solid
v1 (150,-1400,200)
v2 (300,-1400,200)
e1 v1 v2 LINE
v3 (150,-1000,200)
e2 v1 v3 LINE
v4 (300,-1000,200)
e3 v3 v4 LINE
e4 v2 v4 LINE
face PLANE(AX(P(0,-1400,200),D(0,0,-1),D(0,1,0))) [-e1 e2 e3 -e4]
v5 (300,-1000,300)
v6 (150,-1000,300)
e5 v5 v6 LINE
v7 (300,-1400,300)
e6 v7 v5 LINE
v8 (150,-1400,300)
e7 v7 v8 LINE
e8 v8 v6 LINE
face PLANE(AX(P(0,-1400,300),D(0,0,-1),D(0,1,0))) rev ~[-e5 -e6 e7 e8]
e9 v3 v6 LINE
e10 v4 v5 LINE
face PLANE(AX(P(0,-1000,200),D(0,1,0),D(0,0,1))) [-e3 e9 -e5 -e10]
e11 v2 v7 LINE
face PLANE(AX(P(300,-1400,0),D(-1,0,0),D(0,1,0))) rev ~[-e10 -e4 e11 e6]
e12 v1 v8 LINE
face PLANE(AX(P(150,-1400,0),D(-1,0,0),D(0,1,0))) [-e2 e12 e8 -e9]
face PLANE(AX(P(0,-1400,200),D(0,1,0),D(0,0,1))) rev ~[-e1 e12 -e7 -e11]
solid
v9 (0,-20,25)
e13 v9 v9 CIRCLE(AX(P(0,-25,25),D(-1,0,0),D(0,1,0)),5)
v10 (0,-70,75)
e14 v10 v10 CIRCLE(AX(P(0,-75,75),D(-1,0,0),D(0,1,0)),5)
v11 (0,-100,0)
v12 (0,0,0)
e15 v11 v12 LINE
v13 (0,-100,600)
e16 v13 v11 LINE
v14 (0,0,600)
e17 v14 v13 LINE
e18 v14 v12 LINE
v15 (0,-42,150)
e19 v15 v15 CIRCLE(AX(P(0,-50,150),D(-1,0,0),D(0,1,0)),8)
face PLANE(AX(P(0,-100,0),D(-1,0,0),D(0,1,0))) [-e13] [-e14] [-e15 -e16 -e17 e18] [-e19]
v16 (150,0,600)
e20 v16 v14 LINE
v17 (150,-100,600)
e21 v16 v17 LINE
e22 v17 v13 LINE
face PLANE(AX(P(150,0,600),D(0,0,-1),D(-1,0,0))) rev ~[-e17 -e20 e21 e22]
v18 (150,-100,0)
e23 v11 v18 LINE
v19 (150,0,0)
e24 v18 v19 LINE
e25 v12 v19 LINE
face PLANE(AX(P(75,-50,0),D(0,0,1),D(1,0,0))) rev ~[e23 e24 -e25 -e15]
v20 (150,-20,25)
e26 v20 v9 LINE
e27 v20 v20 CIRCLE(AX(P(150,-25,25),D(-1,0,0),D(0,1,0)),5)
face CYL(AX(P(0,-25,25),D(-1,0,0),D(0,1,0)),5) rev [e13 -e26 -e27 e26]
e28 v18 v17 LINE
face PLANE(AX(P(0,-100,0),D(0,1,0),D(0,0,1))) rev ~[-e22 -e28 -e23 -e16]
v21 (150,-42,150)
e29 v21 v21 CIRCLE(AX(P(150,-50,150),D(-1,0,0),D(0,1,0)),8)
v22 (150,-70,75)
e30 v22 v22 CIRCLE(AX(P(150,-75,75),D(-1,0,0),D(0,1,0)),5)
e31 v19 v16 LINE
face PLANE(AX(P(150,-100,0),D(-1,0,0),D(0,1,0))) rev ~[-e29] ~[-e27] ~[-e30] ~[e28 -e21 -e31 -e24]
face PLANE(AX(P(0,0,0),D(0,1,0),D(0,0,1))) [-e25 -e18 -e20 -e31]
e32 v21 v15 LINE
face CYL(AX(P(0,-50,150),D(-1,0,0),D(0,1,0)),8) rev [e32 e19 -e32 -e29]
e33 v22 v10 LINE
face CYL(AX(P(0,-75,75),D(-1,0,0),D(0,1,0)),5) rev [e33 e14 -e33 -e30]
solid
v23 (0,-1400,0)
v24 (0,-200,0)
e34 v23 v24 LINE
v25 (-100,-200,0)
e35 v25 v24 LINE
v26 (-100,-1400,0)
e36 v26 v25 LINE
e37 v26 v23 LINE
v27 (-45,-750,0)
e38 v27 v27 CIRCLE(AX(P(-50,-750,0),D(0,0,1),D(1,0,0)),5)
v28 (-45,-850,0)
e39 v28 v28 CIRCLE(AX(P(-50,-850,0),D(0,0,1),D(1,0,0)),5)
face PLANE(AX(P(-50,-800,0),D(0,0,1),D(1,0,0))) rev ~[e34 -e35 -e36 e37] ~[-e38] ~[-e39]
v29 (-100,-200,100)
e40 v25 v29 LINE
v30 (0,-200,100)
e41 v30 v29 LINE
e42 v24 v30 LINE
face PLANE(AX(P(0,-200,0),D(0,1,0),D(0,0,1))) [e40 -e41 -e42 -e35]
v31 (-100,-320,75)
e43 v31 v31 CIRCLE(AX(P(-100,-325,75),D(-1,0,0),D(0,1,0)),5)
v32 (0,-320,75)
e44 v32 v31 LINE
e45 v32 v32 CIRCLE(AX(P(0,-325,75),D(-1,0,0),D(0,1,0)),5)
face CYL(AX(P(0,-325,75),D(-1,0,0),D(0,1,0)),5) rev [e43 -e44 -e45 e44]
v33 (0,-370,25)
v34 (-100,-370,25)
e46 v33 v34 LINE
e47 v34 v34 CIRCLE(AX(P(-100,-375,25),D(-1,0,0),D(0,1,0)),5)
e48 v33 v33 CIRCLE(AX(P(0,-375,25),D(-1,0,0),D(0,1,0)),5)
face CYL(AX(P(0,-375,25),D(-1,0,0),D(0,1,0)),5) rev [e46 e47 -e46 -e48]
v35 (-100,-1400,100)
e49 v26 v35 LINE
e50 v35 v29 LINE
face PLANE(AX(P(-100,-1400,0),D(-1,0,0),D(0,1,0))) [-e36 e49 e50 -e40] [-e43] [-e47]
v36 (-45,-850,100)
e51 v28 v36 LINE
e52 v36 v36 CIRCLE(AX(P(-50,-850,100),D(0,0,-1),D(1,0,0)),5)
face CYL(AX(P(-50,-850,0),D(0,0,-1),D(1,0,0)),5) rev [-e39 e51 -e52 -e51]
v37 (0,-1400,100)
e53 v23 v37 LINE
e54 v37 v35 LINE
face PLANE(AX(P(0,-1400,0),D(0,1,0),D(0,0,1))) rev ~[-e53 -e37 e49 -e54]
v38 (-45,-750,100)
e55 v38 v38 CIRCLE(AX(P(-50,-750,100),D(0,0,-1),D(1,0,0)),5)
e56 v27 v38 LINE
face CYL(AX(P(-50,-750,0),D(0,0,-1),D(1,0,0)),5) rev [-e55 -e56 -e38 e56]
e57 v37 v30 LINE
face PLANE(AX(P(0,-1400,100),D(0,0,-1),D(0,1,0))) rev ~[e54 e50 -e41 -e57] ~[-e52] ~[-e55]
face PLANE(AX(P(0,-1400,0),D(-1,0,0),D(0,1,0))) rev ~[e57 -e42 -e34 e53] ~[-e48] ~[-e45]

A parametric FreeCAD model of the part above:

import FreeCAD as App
import Part
import Sketcher

V = App.Vector
Q = App.Units.Quantity

doc = App.newDocument("Part")
body = doc.addObject("PartDesign::Body", "Body")

# Sketch on YZ plane
sketch1 = body.newObject("Sketcher::SketchObject", "Sketch")
sketch1.AttachmentSupport = (doc.getObject("YZ_Plane"), [""])
sketch1.MapMode = "FlatFace"
sketch1.addGeometry(Part.LineSegment(V(-1400, 300, 0), V(-1400, 200, 0)), False)
sketch1.addGeometry(Part.LineSegment(V(-1400, 200, 0), V(-1000, 200, 0)), False)
sketch1.addGeometry(Part.LineSegment(V(-1000, 200, 0), V(-1000, 300, 0)), False)
sketch1.addGeometry(Part.LineSegment(V(-1000, 300, 0), V(-1400, 300, 0)), False)
sketch1.addConstraint(Sketcher.Constraint("Coincident", 0, 2, 1, 1))
sketch1.addConstraint(Sketcher.Constraint("Coincident", 1, 2, 2, 1))
sketch1.addConstraint(Sketcher.Constraint("Coincident", 2, 2, 3, 1))
sketch1.addConstraint(Sketcher.Constraint("Coincident", 3, 2, 0, 1))
sketch1.addConstraint(Sketcher.Constraint("Vertical", 0))
sketch1.addConstraint(Sketcher.Constraint("Horizontal", 1))
sketch1.addConstraint(Sketcher.Constraint("Vertical", 2))
sketch1.addConstraint(Sketcher.Constraint("Horizontal", 3))
sketch1.addConstraint(Sketcher.Constraint("DistanceX", 1, 1, 1, 2, Q("400 mm")))
sketch1.addConstraint(Sketcher.Constraint("DistanceY", 0, 2, 0, 1, Q("100 mm")))
sketch1.addConstraint(Sketcher.Constraint("DistanceX", 0, 2, -1, 1, Q("1400 mm")))
sketch1.addConstraint(Sketcher.Constraint("DistanceY", -1, 1, 0, 2, Q("200 mm")))
pad1 = body.newObject("PartDesign::Pad", "Pad")
pad1.Profile = sketch1
pad1.Length = 846
pad1.Midplane = True
body2 = doc.addObject("PartDesign::Body", "Body001")

# Sketch on YZ plane
sketch2 = body2.newObject("Sketcher::SketchObject", "Sketch001")
sketch2.AttachmentSupport = (doc.getObject("YZ_Plane001"), [""])
sketch2.MapMode = "FlatFace"
sketch2.addGeometry(Part.LineSegment(V(-1400, 100, 0), V(-1400, 0, 0)), False)
sketch2.addGeometry(Part.LineSegment(V(-1400, 0, 0), V(-200, 0, 0)), False)
sketch2.addGeometry(Part.LineSegment(V(-200, 0, 0), V(-200, 100, 0)), False)
sketch2.addGeometry(Part.LineSegment(V(-200, 100, 0), V(-1400, 100, 0)), False)
sketch2.addGeometry(Part.Circle(V(-375, 25, 0), V(0, 0, 1), 5), False)
sketch2.addGeometry(Part.Circle(V(-325, 75, 0), V(0, 0, 1), 5), False)
sketch2.addConstraint(Sketcher.Constraint("Coincident", 0, 2, 1, 1))
sketch2.addConstraint(Sketcher.Constraint("Coincident", 1, 2, 2, 1))
sketch2.addConstraint(Sketcher.Constraint("Coincident", 2, 2, 3, 1))
sketch2.addConstraint(Sketcher.Constraint("Coincident", 3, 2, 0, 1))
sketch2.addConstraint(Sketcher.Constraint("Vertical", 0))
sketch2.addConstraint(Sketcher.Constraint("Horizontal", 1))
sketch2.addConstraint(Sketcher.Constraint("Vertical", 2))
sketch2.addConstraint(Sketcher.Constraint("Horizontal", 3))
sketch2.addConstraint(Sketcher.Constraint("Equal", 4, 5))
sketch2.addConstraint(Sketcher.Constraint("PointOnObject", 0, 2, -1))
sketch2.addConstraint(Sketcher.Constraint("Diameter", 4, Q("10 mm")))
sketch2.addConstraint(Sketcher.Constraint("DistanceX", 1, 1, 1, 2, Q("1200 mm")))
sketch2.addConstraint(Sketcher.Constraint("DistanceY", 0, 2, 0, 1, Q("100 mm")))
sketch2.addConstraint(Sketcher.Constraint("DistanceX", 4, 3, -1, 1, Q("375 mm")))
sketch2.addConstraint(Sketcher.Constraint("DistanceY", -1, 1, 4, 3, Q("25 mm")))
sketch2.addConstraint(Sketcher.Constraint("DistanceX", 5, 3, -1, 1, Q("325 mm")))
sketch2.addConstraint(Sketcher.Constraint("DistanceY", -1, 1, 5, 3, Q("75 mm")))
sketch2.addConstraint(Sketcher.Constraint("DistanceX", 0, 2, -1, 1, Q("1400 mm")))
pad2 = body2.newObject("PartDesign::Pad", "Pad001")
pad2.Profile = sketch2
pad2.Length = 846
pad2.Midplane = True
body3 = doc.addObject("PartDesign::Body", "Body002")

# Sketch on YZ plane
sketch3 = body3.newObject("Sketcher::SketchObject", "Sketch002")
sketch3.AttachmentSupport = (doc.getObject("YZ_Plane002"), [""])
sketch3.MapMode = "FlatFace"
sketch3.addGeometry(Part.LineSegment(V(-100, 650, 0), V(-100, 0, 0)), False)
sketch3.addGeometry(Part.LineSegment(V(-100, 0, 0), V(0, 0, 0)), False)
sketch3.addGeometry(Part.LineSegment(V(0, 0, 0), V(0, 650, 0)), False)
sketch3.addGeometry(Part.LineSegment(V(0, 650, 0), V(-100, 650, 0)), False)
sketch3.addGeometry(Part.Circle(V(-75, 75, 0), V(0, 0, 1), 5), False)
sketch3.addGeometry(Part.Circle(V(-25, 25, 0), V(0, 0, 1), 5), False)
sketch3.addGeometry(Part.Circle(V(-50, 150, 0), V(0, 0, 1), 8), False)
sketch3.addConstraint(Sketcher.Constraint("Coincident", 0, 2, 1, 1))
sketch3.addConstraint(Sketcher.Constraint("Coincident", 1, 2, 2, 1))
sketch3.addConstraint(Sketcher.Constraint("Coincident", 2, 2, 3, 1))
sketch3.addConstraint(Sketcher.Constraint("Coincident", 3, 2, 0, 1))
sketch3.addConstraint(Sketcher.Constraint("Vertical", 0))
sketch3.addConstraint(Sketcher.Constraint("Horizontal", 1))
sketch3.addConstraint(Sketcher.Constraint("Vertical", 2))
sketch3.addConstraint(Sketcher.Constraint("Horizontal", 3))
sketch3.addConstraint(Sketcher.Constraint("Coincident", 1, 2, -1, 1))
sketch3.addConstraint(Sketcher.Constraint("Equal", 4, 5))
sketch3.addConstraint(Sketcher.Constraint("Diameter", 4, Q("10 mm")))
sketch3.addConstraint(Sketcher.Constraint("Diameter", 6, Q("16 mm")))
sketch3.addConstraint(Sketcher.Constraint("DistanceX", 1, 1, 1, 2, Q("100 mm")))
sketch3.addConstraint(Sketcher.Constraint("DistanceY", 0, 2, 0, 1, Q("650 mm")))
sketch3.addConstraint(Sketcher.Constraint("DistanceX", 4, 3, -1, 1, Q("75 mm")))
sketch3.addConstraint(Sketcher.Constraint("DistanceY", -1, 1, 4, 3, Q("75 mm")))
sketch3.addConstraint(Sketcher.Constraint("DistanceX", 5, 3, -1, 1, Q("25 mm")))
sketch3.addConstraint(Sketcher.Constraint("DistanceY", -1, 1, 5, 3, Q("25 mm")))
sketch3.addConstraint(Sketcher.Constraint("DistanceX", 6, 3, -1, 1, Q("50 mm")))
sketch3.addConstraint(Sketcher.Constraint("DistanceY", -1, 1, 6, 3, Q("150 mm")))
pad3 = body3.newObject("PartDesign::Pad", "Pad002")
pad3.Profile = sketch3
pad3.Length = 846
pad3.Midplane = True
body4 = doc.addObject("PartDesign::Body", "Body003")
body4.AllowCompound = True

# Sketch on XY plane
sketch4 = body4.newObject("Sketcher::SketchObject", "Sketch003")
sketch4.AttachmentSupport = (doc.getObject("XY_Plane003"), [""])
sketch4.MapMode = "FlatFace"
sketch4.addGeometry(Part.LineSegment(V(0, 0, 0), V(0, -100, 0)), False)
sketch4.addGeometry(Part.LineSegment(V(0, -100, 0), V(150, -100, 0)), False)
sketch4.addGeometry(Part.LineSegment(V(150, -100, 0), V(150, 0, 0)), False)
sketch4.addGeometry(Part.LineSegment(V(150, 0, 0), V(0, 0, 0)), False)
sketch4.addGeometry(Part.LineSegment(V(-100, -200, 0), V(-100, -1400, 0)), False)
sketch4.addGeometry(Part.LineSegment(V(-100, -1400, 0), V(0, -1400, 0)), False)
sketch4.addGeometry(Part.LineSegment(V(0, -1400, 0), V(0, -200, 0)), False)
sketch4.addGeometry(Part.LineSegment(V(0, -200, 0), V(-100, -200, 0)), False)
sketch4.addGeometry(Part.Circle(V(-50, -850, 0), V(0, 0, 1), 5), False)
sketch4.addGeometry(Part.Circle(V(-50, -750, 0), V(0, 0, 1), 5), False)
sketch4.addGeometry(Part.LineSegment(V(150, -1000, 0), V(150, -1400, 0)), False)
sketch4.addGeometry(Part.LineSegment(V(150, -1400, 0), V(300, -1400, 0)), False)
sketch4.addGeometry(Part.LineSegment(V(300, -1400, 0), V(300, -1000, 0)), False)
sketch4.addGeometry(Part.LineSegment(V(300, -1000, 0), V(150, -1000, 0)), False)
sketch4.addConstraint(Sketcher.Constraint("Coincident", 0, 2, 1, 1))
sketch4.addConstraint(Sketcher.Constraint("Coincident", 1, 2, 2, 1))
sketch4.addConstraint(Sketcher.Constraint("Coincident", 2, 2, 3, 1))
sketch4.addConstraint(Sketcher.Constraint("Coincident", 3, 2, 0, 1))
sketch4.addConstraint(Sketcher.Constraint("Coincident", 4, 2, 5, 1))
sketch4.addConstraint(Sketcher.Constraint("Coincident", 5, 2, 6, 1))
sketch4.addConstraint(Sketcher.Constraint("Coincident", 6, 2, 7, 1))
sketch4.addConstraint(Sketcher.Constraint("Coincident", 7, 2, 4, 1))
sketch4.addConstraint(Sketcher.Constraint("Coincident", 10, 2, 11, 1))
sketch4.addConstraint(Sketcher.Constraint("Coincident", 11, 2, 12, 1))
sketch4.addConstraint(Sketcher.Constraint("Coincident", 12, 2, 13, 1))
sketch4.addConstraint(Sketcher.Constraint("Coincident", 13, 2, 10, 1))
sketch4.addConstraint(Sketcher.Constraint("Vertical", 0))
sketch4.addConstraint(Sketcher.Constraint("Horizontal", 1))
sketch4.addConstraint(Sketcher.Constraint("Vertical", 2))
sketch4.addConstraint(Sketcher.Constraint("Horizontal", 3))
sketch4.addConstraint(Sketcher.Constraint("Vertical", 4))
sketch4.addConstraint(Sketcher.Constraint("Horizontal", 5))
sketch4.addConstraint(Sketcher.Constraint("Vertical", 6))
sketch4.addConstraint(Sketcher.Constraint("Horizontal", 7))
sketch4.addConstraint(Sketcher.Constraint("Vertical", 10))
sketch4.addConstraint(Sketcher.Constraint("Horizontal", 11))
sketch4.addConstraint(Sketcher.Constraint("Vertical", 12))
sketch4.addConstraint(Sketcher.Constraint("Horizontal", 13))
sketch4.addConstraint(Sketcher.Constraint("Coincident", 3, 2, -1, 1))
sketch4.addConstraint(Sketcher.Constraint("Equal", 8, 9))
sketch4.addConstraint(Sketcher.Constraint("PointOnObject", 5, 2, -2))
sketch4.addConstraint(Sketcher.Constraint("Horizontal", 5, 2, 10, 2))
sketch4.addConstraint(Sketcher.Constraint("Vertical", 8, 3, 9, 3))
sketch4.addConstraint(Sketcher.Constraint("Vertical", 2, 2, 10, 2))
sketch4.addConstraint(Sketcher.Constraint("Equal", 3, 11))
sketch4.addConstraint(Sketcher.Constraint("Equal", 7, 0))
sketch4.addConstraint(Sketcher.Constraint("Diameter", 8, Q("10 mm")))
sketch4.addConstraint(Sketcher.Constraint("DistanceX", 1, 1, 1, 2, Q("150 mm")))
sketch4.addConstraint(Sketcher.Constraint("DistanceX", 5, 1, 5, 2, Q("100 mm")))
sketch4.addConstraint(Sketcher.Constraint("DistanceY", 4, 2, 4, 1, Q("1200 mm")))
sketch4.addConstraint(Sketcher.Constraint("DistanceY", 10, 2, 10, 1, Q("400 mm")))
sketch4.addConstraint(Sketcher.Constraint("DistanceX", 8, 3, -1, 1, Q("50 mm")))
sketch4.addConstraint(Sketcher.Constraint("DistanceY", 8, 3, -1, 1, Q("850 mm")))
sketch4.addConstraint(Sketcher.Constraint("DistanceY", 9, 3, -1, 1, Q("750 mm")))
sketch4.addConstraint(Sketcher.Constraint("DistanceY", 4, 2, -1, 1, Q("1400 mm")))
pad4 = body4.newObject("PartDesign::Pad", "Pad003")
pad4.Profile = sketch4
pad4.Length = 1000
body.AllowCompound = True
doc.recompute()

body5 = doc.addObject("PartDesign::Body", "Body004")
body5.BaseFeature = body4
boolean = body.newObject("PartDesign::Boolean", "Boolean")
boolean.Type = "Common"
boolean.addObjects([body5])
doc.recompute()
body2.AllowCompound = True
doc.recompute()

body6 = doc.addObject("PartDesign::Body", "Body005")
body6.BaseFeature = body4
boolean2 = body2.newObject("PartDesign::Boolean", "Boolean001")
boolean2.Type = "Common"
boolean2.addObjects([body6])
doc.recompute()

boolean3 = body3.newObject("PartDesign::Boolean", "Boolean002")
boolean3.Type = "Common"
boolean3.addObjects([body4])
body7 = doc.addObject("PartDesign::Body", "Body006")

# Sketch on XZ plane
sketch5 = body7.newObject("Sketcher::SketchObject", "Sketch004")
sketch5.AttachmentSupport = (doc.getObject("XZ_Plane006"), [""])
sketch5.MapMode = "FlatFace"
sketch5.addGeometry(Part.LineSegment(V(-100, 0, 0), V(150, 0, 0)), False)
sketch5.addGeometry(Part.LineSegment(V(150, 0, 0), V(150, 200, 0)), False)
sketch5.addGeometry(Part.LineSegment(V(150, 200, 0), V(300, 200, 0)), False)
sketch5.addGeometry(Part.LineSegment(V(300, 200, 0), V(300, 300, 0)), False)
sketch5.addGeometry(Part.LineSegment(V(300, 300, 0), V(150, 300, 0)), False)
sketch5.addGeometry(Part.LineSegment(V(150, 300, 0), V(150, 600, 0)), False)
sketch5.addGeometry(Part.LineSegment(V(150, 600, 0), V(0, 600, 0)), False)
sketch5.addGeometry(Part.LineSegment(V(0, 600, 0), V(0, 100, 0)), False)
sketch5.addGeometry(Part.LineSegment(V(0, 100, 0), V(-100, 100, 0)), False)
sketch5.addGeometry(Part.LineSegment(V(-100, 100, 0), V(-100, 0, 0)), False)
sketch5.addConstraint(Sketcher.Constraint("Coincident", 0, 2, 1, 1))
sketch5.addConstraint(Sketcher.Constraint("Coincident", 1, 2, 2, 1))
sketch5.addConstraint(Sketcher.Constraint("Coincident", 2, 2, 3, 1))
sketch5.addConstraint(Sketcher.Constraint("Coincident", 3, 2, 4, 1))
sketch5.addConstraint(Sketcher.Constraint("Coincident", 4, 2, 5, 1))
sketch5.addConstraint(Sketcher.Constraint("Coincident", 5, 2, 6, 1))
sketch5.addConstraint(Sketcher.Constraint("Coincident", 6, 2, 7, 1))
sketch5.addConstraint(Sketcher.Constraint("Coincident", 7, 2, 8, 1))
sketch5.addConstraint(Sketcher.Constraint("Coincident", 8, 2, 9, 1))
sketch5.addConstraint(Sketcher.Constraint("Coincident", 9, 2, 0, 1))
sketch5.addConstraint(Sketcher.Constraint("Horizontal", 0))
sketch5.addConstraint(Sketcher.Constraint("Vertical", 1))
sketch5.addConstraint(Sketcher.Constraint("Horizontal", 2))
sketch5.addConstraint(Sketcher.Constraint("Vertical", 3))
sketch5.addConstraint(Sketcher.Constraint("Horizontal", 4))
sketch5.addConstraint(Sketcher.Constraint("Vertical", 5))
sketch5.addConstraint(Sketcher.Constraint("Horizontal", 6))
sketch5.addConstraint(Sketcher.Constraint("Vertical", 7))
sketch5.addConstraint(Sketcher.Constraint("Horizontal", 8))
sketch5.addConstraint(Sketcher.Constraint("Vertical", 9))
sketch5.addConstraint(Sketcher.Constraint("PointOnObject", 0, 2, -1))
sketch5.addConstraint(Sketcher.Constraint("PointOnObject", 6, 2, -2))
sketch5.addConstraint(Sketcher.Constraint("Vertical", 1, 2, 4, 2))
sketch5.addConstraint(Sketcher.Constraint("Equal", 4, 6))
sketch5.addConstraint(Sketcher.Constraint("Equal", 8, 3))
sketch5.addConstraint(Sketcher.Constraint("Equal", 3, 9))
sketch5.addConstraint(Sketcher.Constraint("DistanceX", 0, 1, 0, 2, Q("250 mm")))
sketch5.addConstraint(Sketcher.Constraint("DistanceX", 2, 1, 2, 2, Q("150 mm")))
sketch5.addConstraint(Sketcher.Constraint("DistanceY", 1, 1, 1, 2, Q("200 mm")))
sketch5.addConstraint(Sketcher.Constraint("DistanceY", 5, 1, 5, 2, Q("300 mm")))
pad5 = body7.newObject("PartDesign::Pad", "Pad004")
pad5.Profile = sketch5
pad5.Length = 1520
doc.recompute()

body8 = doc.addObject("PartDesign::Body", "Body007")
body8.BaseFeature = body7
boolean4 = body.newObject("PartDesign::Boolean", "Boolean003")
boolean4.Type = "Common"
boolean4.addObjects([body8])
doc.recompute()

body9 = doc.addObject("PartDesign::Body", "Body008")
body9.BaseFeature = body7
boolean5 = body2.newObject("PartDesign::Boolean", "Boolean004")
boolean5.Type = "Common"
boolean5.addObjects([body9])
doc.recompute()

boolean6 = body3.newObject("PartDesign::Boolean", "Boolean005")
boolean6.Type = "Common"
boolean6.addObjects([body7])

doc.recompute()
